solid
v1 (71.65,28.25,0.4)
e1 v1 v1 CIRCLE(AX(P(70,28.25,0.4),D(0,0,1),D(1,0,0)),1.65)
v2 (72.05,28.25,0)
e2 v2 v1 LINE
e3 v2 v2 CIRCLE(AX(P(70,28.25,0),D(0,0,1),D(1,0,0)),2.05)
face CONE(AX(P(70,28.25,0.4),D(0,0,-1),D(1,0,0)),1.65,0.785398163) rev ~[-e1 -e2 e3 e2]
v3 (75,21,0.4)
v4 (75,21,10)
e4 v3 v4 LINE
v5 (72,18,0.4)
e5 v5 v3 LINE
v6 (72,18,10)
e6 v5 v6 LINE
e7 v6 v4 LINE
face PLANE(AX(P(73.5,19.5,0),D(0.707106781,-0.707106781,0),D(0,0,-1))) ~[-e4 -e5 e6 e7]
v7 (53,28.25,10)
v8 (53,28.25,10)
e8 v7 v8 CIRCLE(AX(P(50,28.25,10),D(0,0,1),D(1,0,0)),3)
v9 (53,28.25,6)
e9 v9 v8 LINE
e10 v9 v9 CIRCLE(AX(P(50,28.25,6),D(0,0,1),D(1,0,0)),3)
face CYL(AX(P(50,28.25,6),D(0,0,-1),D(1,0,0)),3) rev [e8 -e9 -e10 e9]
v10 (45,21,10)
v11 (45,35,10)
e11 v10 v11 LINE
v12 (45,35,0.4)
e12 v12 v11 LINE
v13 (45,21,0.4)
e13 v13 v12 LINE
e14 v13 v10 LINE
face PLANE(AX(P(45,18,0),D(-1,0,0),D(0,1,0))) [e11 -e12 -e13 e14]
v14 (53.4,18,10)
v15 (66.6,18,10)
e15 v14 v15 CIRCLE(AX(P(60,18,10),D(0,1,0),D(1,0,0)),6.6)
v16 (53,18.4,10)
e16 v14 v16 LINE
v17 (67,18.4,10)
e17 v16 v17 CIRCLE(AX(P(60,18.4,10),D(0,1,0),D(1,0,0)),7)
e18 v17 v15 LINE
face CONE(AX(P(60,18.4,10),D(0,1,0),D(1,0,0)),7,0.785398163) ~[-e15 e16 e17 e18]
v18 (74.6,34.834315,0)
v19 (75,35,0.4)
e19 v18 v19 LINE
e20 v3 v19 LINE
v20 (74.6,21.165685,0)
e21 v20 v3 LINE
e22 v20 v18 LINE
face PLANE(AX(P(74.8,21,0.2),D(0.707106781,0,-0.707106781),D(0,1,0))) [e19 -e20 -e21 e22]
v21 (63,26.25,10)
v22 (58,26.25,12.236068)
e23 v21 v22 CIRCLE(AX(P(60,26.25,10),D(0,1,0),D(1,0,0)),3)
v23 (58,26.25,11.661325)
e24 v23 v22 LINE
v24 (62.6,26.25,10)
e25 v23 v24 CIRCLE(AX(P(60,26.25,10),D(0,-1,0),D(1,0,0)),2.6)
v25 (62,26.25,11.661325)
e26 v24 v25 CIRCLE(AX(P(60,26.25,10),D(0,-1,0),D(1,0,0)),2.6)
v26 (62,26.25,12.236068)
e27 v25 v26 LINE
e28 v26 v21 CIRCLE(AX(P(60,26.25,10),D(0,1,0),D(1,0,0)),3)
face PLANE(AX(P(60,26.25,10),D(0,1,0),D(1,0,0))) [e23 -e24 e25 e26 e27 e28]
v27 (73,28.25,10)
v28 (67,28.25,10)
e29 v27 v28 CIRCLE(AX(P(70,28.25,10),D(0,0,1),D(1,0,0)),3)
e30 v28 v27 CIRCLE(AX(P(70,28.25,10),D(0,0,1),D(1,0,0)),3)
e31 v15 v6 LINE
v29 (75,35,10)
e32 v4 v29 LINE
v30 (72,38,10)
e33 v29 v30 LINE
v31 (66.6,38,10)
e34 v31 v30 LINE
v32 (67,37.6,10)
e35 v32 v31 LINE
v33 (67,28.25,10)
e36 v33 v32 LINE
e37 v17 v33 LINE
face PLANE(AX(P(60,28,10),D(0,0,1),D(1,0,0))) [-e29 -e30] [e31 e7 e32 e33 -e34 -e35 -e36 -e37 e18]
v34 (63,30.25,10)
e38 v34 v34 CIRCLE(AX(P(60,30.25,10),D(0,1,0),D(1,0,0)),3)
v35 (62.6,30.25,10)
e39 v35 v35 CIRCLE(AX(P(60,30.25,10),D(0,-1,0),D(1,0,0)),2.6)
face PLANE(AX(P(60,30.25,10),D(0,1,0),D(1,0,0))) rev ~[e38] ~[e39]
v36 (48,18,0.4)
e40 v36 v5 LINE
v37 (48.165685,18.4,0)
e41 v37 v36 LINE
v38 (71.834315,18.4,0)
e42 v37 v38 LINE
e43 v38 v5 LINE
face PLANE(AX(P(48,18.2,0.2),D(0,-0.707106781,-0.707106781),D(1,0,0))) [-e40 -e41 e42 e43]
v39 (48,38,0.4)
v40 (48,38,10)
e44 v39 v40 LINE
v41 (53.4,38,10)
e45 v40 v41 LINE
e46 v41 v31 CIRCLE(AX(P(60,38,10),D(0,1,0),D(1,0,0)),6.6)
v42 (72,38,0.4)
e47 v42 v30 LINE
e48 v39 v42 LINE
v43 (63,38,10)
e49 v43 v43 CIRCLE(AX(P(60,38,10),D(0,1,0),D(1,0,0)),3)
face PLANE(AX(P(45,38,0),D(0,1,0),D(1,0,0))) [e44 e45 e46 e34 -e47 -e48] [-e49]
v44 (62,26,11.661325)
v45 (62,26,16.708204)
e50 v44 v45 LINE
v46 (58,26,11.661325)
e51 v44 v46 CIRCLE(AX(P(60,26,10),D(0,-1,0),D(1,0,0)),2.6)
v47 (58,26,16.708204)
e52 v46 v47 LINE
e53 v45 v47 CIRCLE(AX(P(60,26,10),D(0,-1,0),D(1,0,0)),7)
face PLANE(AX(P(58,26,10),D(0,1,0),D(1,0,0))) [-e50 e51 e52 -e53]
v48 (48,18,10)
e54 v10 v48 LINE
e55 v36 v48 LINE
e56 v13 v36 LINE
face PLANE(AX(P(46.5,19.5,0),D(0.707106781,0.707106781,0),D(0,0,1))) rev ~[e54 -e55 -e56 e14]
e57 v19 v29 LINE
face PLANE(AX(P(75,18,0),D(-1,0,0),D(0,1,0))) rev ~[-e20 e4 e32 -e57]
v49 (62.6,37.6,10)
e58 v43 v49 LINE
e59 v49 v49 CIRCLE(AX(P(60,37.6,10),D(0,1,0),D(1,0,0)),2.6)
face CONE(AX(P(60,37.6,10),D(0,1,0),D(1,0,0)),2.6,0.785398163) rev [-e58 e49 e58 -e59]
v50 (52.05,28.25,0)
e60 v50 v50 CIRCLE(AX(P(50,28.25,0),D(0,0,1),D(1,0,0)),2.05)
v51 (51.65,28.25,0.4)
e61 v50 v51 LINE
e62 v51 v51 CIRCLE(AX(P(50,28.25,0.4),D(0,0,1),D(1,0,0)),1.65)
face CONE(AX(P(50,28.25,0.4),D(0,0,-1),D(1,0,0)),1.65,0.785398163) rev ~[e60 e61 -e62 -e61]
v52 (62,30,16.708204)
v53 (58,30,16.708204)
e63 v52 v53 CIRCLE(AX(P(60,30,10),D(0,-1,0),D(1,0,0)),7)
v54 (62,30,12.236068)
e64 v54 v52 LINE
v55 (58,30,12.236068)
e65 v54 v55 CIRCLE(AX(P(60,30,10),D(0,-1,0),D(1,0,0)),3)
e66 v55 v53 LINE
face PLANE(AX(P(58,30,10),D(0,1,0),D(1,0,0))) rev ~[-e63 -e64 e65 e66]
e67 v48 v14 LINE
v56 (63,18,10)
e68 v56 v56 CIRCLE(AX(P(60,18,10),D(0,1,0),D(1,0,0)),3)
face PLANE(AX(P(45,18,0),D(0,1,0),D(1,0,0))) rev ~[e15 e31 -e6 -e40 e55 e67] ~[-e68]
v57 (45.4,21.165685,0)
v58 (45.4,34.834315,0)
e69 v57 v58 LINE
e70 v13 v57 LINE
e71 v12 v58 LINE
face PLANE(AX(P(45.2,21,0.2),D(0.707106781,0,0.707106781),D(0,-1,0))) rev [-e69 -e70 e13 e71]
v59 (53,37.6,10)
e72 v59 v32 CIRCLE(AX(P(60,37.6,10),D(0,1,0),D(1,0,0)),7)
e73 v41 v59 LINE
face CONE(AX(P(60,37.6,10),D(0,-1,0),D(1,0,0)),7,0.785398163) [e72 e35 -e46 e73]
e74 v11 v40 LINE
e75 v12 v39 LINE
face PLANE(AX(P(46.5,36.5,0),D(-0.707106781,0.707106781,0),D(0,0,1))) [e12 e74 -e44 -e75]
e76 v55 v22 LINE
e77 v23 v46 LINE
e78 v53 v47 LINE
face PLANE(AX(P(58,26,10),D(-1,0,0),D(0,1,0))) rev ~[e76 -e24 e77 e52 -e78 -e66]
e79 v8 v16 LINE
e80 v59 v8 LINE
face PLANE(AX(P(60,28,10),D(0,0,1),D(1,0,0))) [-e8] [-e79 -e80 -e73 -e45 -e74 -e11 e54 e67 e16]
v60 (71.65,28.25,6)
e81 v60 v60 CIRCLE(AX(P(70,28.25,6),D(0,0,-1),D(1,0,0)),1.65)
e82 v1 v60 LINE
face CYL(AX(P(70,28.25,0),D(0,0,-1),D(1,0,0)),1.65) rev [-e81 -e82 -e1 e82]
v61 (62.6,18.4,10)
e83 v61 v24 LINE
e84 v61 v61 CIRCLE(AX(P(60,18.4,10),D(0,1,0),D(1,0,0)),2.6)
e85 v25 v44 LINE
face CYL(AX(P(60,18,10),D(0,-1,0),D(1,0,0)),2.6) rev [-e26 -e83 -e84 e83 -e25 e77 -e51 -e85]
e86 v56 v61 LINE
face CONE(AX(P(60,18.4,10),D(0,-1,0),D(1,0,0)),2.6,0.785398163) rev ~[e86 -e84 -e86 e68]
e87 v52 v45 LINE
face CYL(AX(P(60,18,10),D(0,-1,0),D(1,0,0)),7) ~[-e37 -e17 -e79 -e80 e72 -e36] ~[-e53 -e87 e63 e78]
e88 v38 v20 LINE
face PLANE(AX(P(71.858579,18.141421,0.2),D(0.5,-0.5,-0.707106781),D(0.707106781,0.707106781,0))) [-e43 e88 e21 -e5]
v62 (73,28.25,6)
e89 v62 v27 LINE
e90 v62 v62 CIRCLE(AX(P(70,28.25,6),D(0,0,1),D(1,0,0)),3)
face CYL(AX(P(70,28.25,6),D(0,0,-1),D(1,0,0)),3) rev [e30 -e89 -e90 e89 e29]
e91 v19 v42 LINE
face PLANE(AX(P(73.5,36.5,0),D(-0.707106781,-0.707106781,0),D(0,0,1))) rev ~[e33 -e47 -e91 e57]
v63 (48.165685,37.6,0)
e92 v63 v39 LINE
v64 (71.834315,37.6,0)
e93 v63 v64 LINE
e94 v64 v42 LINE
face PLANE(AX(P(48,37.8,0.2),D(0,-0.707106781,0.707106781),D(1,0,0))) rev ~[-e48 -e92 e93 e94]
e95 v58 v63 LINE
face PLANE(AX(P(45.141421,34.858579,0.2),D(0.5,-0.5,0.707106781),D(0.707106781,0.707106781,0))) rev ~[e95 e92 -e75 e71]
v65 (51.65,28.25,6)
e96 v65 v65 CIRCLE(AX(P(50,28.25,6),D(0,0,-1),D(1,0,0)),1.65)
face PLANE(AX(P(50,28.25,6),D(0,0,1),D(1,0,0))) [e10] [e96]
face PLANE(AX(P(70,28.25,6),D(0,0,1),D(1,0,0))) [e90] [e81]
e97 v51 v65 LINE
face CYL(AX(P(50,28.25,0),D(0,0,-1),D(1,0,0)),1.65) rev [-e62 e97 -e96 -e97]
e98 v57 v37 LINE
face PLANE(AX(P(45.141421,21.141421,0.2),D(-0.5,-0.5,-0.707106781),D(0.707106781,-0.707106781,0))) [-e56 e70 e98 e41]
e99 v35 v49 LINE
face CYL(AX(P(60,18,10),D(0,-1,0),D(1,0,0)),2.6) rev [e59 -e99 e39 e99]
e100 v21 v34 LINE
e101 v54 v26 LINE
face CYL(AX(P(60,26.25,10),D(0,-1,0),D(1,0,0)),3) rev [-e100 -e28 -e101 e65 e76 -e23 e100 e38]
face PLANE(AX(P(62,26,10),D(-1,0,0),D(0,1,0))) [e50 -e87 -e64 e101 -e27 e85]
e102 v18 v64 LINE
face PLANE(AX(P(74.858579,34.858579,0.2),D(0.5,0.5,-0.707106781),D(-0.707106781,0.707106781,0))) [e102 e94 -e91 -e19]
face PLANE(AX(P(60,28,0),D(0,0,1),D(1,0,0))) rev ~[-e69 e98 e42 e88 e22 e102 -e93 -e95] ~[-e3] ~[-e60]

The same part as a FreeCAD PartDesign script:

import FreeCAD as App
import Part
import Sketcher

V = App.Vector


def edges_at(feature, points):
    """Names of the edges that pass closest to the given points."""
    edges = feature.Shape.Edges
    near = lambda p: min(range(len(edges)), key=lambda i: edges[i].distToShape(Part.Vertex(*p))[0])
    return sorted({f"Edge{near(p) + 1}" for p in points})


def add_polygon(sketch, points):
    """Adds a closed chain of lines whose ends are joined by coincident constraints."""
    first, n = sketch.GeometryCount, len(points)
    for a, b in zip(points, points[1:] + points[:1]):
        sketch.addGeometry(Part.LineSegment(App.Vector(*a, 0), App.Vector(*b, 0)), False)
    for i in range(n):
        sketch.addConstraint(Sketcher.Constraint("Coincident", first + i, 2, first + (i + 1) % n, 1))

doc = App.newDocument("Part")
body = doc.addObject("PartDesign::Body", "Body")

sketch1 = body.newObject("Sketcher::SketchObject", "Sketch")
sketch1.AttachmentSupport = (doc.getObject("XZ_Plane"), [""])
sketch1.MapMode = "FlatFace"
sketch1.AttachmentOffset = App.Placement(V(0, 0, -18), App.Rotation())
sketch1.addGeometry(Part.Circle(V(60, 10, 0), V(0, 0, 1), 2.6), False)
sketch1.addConstraint([
    Sketcher.Constraint("Diameter", 0, 5.2),
    Sketcher.Constraint("DistanceX", -1, 1, 0, 3, 60.0),
    Sketcher.Constraint("DistanceY", -1, 1, 0, 3, 10.0),
])
pad1 = body.newObject("PartDesign::Pad", "Pad")
pad1.Profile = sketch1
pad1.Length = 20
pad1.Reversed = True
body2 = doc.addObject("PartDesign::Body", "Body001")

sketch2 = body2.newObject("Sketcher::SketchObject", "Sketch001")
sketch2.AttachmentSupport = (doc.getObject("XY_Plane001"), [""])
sketch2.MapMode = "FlatFace"
sketch2.AttachmentOffset = App.Placement(V(0, 0, 10), App.Rotation())
add_polygon(sketch2, [(58, 30), (58, 26), (62, 26), (62, 30)])
sketch2.addConstraint([
    Sketcher.Constraint("Vertical", 0),
    Sketcher.Constraint("Horizontal", 1),
    Sketcher.Constraint("Vertical", 2),
    Sketcher.Constraint("Horizontal", 3),
    Sketcher.Constraint("Equal", 3, 0),
    Sketcher.Constraint("DistanceX", 1, 1, 1, 2, 4.0),
    Sketcher.Constraint("DistanceX", -1, 1, 0, 2, 58.0),
    Sketcher.Constraint("DistanceY", -1, 1, 0, 2, 26.0),
])
pad2 = body2.newObject("PartDesign::Pad", "Pad001")
pad2.Profile = sketch2
pad2.Length = 10
body3 = doc.addObject("PartDesign::Body", "Body002")

sketch3 = body3.newObject("Sketcher::SketchObject", "Sketch002")
sketch3.AttachmentSupport = (doc.getObject("XZ_Plane002"), [""])
sketch3.MapMode = "FlatFace"
sketch3.AttachmentOffset = App.Placement(V(0, 0, -26.25), App.Rotation())
sketch3.addGeometry(Part.Circle(V(60, 10, 0), V(0, 0, 1), 3), False)
sketch3.addConstraint([
    Sketcher.Constraint("Diameter", 0, 6.0),
    Sketcher.Constraint("DistanceX", -1, 1, 0, 3, 60.0),
    Sketcher.Constraint("DistanceY", -1, 1, 0, 3, 10.0),
])
pad3 = body3.newObject("PartDesign::Pad", "Pad002")
pad3.Profile = sketch3
pad3.Length = 4
pad3.Reversed = True
body4 = doc.addObject("PartDesign::Body", "Body003")

sketch4 = body4.newObject("Sketcher::SketchObject", "Sketch003")
sketch4.AttachmentSupport = (doc.getObject("XZ_Plane003"), [""])
sketch4.MapMode = "FlatFace"
sketch4.AttachmentOffset = App.Placement(V(0, 0, -18), App.Rotation())
sketch4.addGeometry(Part.Circle(V(60, 10, 0), V(0, 0, 1), 7), False)
sketch4.addConstraint([
    Sketcher.Constraint("Diameter", 0, 14.0),
    Sketcher.Constraint("DistanceX", -1, 1, 0, 3, 60.0),
    Sketcher.Constraint("DistanceY", -1, 1, 0, 3, 10.0),
])
pad4 = body4.newObject("PartDesign::Pad", "Pad003")
pad4.Profile = sketch4
pad4.Length = 20
pad4.Reversed = True
doc.recompute()

chamfer = body4.newObject("PartDesign::Chamfer", "Chamfer")
chamfer.Base = (pad4, edges_at(pad4, [(53, 38, 10), (53, 18, 10)]))
chamfer.Size = 0.4
body5 = doc.addObject("PartDesign::Body", "Body004")

sketch5 = body5.newObject("Sketcher::SketchObject", "Sketch004")
sketch5.AttachmentSupport = (doc.getObject("XY_Plane004"), [""])
sketch5.MapMode = "FlatFace"
sketch5.addGeometry(Part.Circle(V(70, 28.2, 0), V(0, 0, 1), 3), False)
sketch5.addConstraint([
    Sketcher.Constraint("Diameter", 0, 6.0),
    Sketcher.Constraint("DistanceX", -1, 1, 0, 3, 70.0),
    Sketcher.Constraint("DistanceY", -1, 1, 0, 3, 28.25),
])
pad5 = body5.newObject("PartDesign::Pad", "Pad004")
pad5.Profile = sketch5
pad5.Length = 4
body6 = doc.addObject("PartDesign::Body", "Body005")
body6.AllowCompound = True

sketch6 = body6.newObject("Sketcher::SketchObject", "Sketch005")
sketch6.AttachmentSupport = (doc.getObject("XY_Plane005"), [""])
sketch6.MapMode = "FlatFace"
sketch6.addGeometry(Part.Circle(V(50, 28.2, 0), V(0, 0, 1), 3), False)
sketch6.addConstraint([
    Sketcher.Constraint("Diameter", 0, 6.0),
    Sketcher.Constraint("DistanceX", -1, 1, 0, 3, 50.0),
    Sketcher.Constraint("DistanceY", -1, 1, 0, 3, 28.25),
])
pad6 = body6.newObject("PartDesign::Pad", "Pad005")
pad6.Profile = sketch6
pad6.Length = 4
doc.recompute()

boolean = body6.newObject("PartDesign::Boolean", "Boolean")
boolean.Type = "Fuse"
boolean.addObjects([body5])
body7 = doc.addObject("PartDesign::Body", "Body006")
body7.AllowCompound = True
doc.recompute()

body6.Placement = App.Placement(V(0, 0, 6), App.Rotation(V(0, 0, 1), 0))
boolean2 = body7.newObject("PartDesign::Boolean", "Boolean001")
boolean2.Type = "Fuse"
boolean2.addObjects([body6])
body8 = doc.addObject("PartDesign::Body", "Body007")

sketch7 = body8.newObject("Sketcher::SketchObject", "Sketch006")
sketch7.AttachmentSupport = (doc.getObject("XY_Plane007"), [""])
sketch7.MapMode = "FlatFace"
sketch7.addGeometry(Part.Circle(V(50, 28.2, 0), V(0, 0, 1), 1.6), False)
sketch7.addConstraint([
    Sketcher.Constraint("Diameter", 0, 3.3),
    Sketcher.Constraint("DistanceX", -1, 1, 0, 3, 50.0),
    Sketcher.Constraint("DistanceY", -1, 1, 0, 3, 28.25),
])
pad7 = body8.newObject("PartDesign::Pad", "Pad006")
pad7.Profile = sketch7
pad7.Length = 33
body9 = doc.addObject("PartDesign::Body", "Body008")
body9.AllowCompound = True

sketch8 = body9.newObject("Sketcher::SketchObject", "Sketch007")
sketch8.AttachmentSupport = (doc.getObject("XY_Plane008"), [""])
sketch8.MapMode = "FlatFace"
sketch8.addGeometry(Part.Circle(V(70, 28.2, 0), V(0, 0, 1), 1.6), False)
sketch8.addConstraint([
    Sketcher.Constraint("Diameter", 0, 3.3),
    Sketcher.Constraint("DistanceX", -1, 1, 0, 3, 70.0),
    Sketcher.Constraint("DistanceY", -1, 1, 0, 3, 28.25),
])
pad8 = body9.newObject("PartDesign::Pad", "Pad007")
pad8.Profile = sketch8
pad8.Length = 33
doc.recompute()

boolean3 = body9.newObject("PartDesign::Boolean", "Boolean002")
boolean3.Type = "Fuse"
boolean3.addObjects([body8])
body10 = doc.addObject("PartDesign::Body", "Body009")

sketch9 = body10.newObject("Sketcher::SketchObject", "Sketch008")
sketch9.AttachmentSupport = (doc.getObject("XY_Plane009"), [""])
sketch9.MapMode = "FlatFace"
add_polygon(sketch9, [(45, 38), (45, 18), (75, 18), (75, 38)])
sketch9.addConstraint([
    Sketcher.Constraint("Vertical", 0),
    Sketcher.Constraint("Horizontal", 1),
    Sketcher.Constraint("Vertical", 2),
    Sketcher.Constraint("Horizontal", 3),
    Sketcher.Constraint("DistanceX", 1, 1, 1, 2, 30.0),
    Sketcher.Constraint("DistanceY", 0, 2, 0, 1, 20.0),
    Sketcher.Constraint("DistanceX", -1, 1, 0, 2, 45.0),
    Sketcher.Constraint("DistanceY", -1, 1, 0, 2, 18.0),
])
pad9 = body10.newObject("PartDesign::Pad", "Pad008")
pad9.Profile = sketch9
pad9.Length = 10
doc.recompute()

chamfer2 = body10.newObject("PartDesign::Chamfer", "Chamfer001")
chamfer2.Base = (pad9, edges_at(pad9, [
    (45, 18, 5),
    (45, 38, 5),
    (75, 18, 5),
    (75, 38, 5),
]))
chamfer2.Size = 3
doc.recompute()

boolean4 = body10.newObject("PartDesign::Boolean", "Boolean003")
boolean4.Type = "Cut"
boolean4.addObjects([body9])
doc.recompute()

chamfer3 = body10.newObject("PartDesign::Chamfer", "Chamfer002")
chamfer3.Base = (boolean4, edges_at(boolean4, [
    (45, 28, 0),
    (46.5, 19.5, 0),
    (46.5, 36.5, 0),
    (60, 18, 0),
    (60, 38, 0),
    (73.5, 19.5, 0),
    (73.5, 36.5, 0),
    (75, 28, 0),
    (68.35, 28.25, 0),
    (48.35, 28.25, 0),
]))
chamfer3.Size = 0.4
doc.recompute()

boolean5 = body10.newObject("PartDesign::Boolean", "Boolean004")
boolean5.Type = "Cut"
boolean5.addObjects([body7])
doc.recompute()

boolean6 = body10.newObject("PartDesign::Boolean", "Boolean005")
boolean6.Type = "Fuse"
boolean6.addObjects([body4])
doc.recompute()

boolean7 = body10.newObject("PartDesign::Boolean", "Boolean006")
boolean7.Type = "Cut"
boolean7.addObjects([body3])
doc.recompute()

boolean8 = body10.newObject("PartDesign::Boolean", "Boolean007")
boolean8.Type = "Cut"
boolean8.addObjects([body2])
doc.recompute()

boolean9 = body10.newObject("PartDesign::Boolean", "Boolean008")
boolean9.Type = "Cut"
boolean9.addObjects([body])
doc.recompute()

chamfer4 = body10.newObject("PartDesign::Chamfer", "Chamfer003")
chamfer4.Base = (boolean9, edges_at(boolean9, [
    (57.4, 18, 10),
    (57.4, 38, 10),
    (57.4, 38, 10),
    (57.4, 18, 10),
]))
chamfer4.Size = 0.4

doc.recompute()
